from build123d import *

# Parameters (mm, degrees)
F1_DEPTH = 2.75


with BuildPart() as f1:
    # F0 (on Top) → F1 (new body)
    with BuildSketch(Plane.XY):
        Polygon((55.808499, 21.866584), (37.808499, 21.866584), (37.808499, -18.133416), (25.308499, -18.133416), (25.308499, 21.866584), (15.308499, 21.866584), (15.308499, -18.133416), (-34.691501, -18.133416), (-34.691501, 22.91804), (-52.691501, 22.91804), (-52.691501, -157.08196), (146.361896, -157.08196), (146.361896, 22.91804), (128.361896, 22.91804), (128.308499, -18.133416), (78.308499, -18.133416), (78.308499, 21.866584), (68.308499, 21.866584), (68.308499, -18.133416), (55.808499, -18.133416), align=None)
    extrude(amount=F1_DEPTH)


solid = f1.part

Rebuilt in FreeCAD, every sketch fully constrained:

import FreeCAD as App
import Part
import Sketcher
from FreeCAD import Vector


def add_polygon(sketch, points):
    """Adds a closed chain of lines whose ends are joined by coincident constraints."""
    first, n = sketch.GeometryCount, len(points)
    for a, b in zip(points, points[1:] + points[:1]):
        sketch.addGeometry(Part.LineSegment(App.Vector(*a, 0), App.Vector(*b, 0)), False)
    for i in range(n):
        sketch.addConstraint(Sketcher.Constraint("Coincident", first + i, 2, first + (i + 1) % n, 1))

doc = App.newDocument("Part")
params = doc.addObject("Spreadsheet::Sheet", "Params")
for row, (alias, value) in enumerate([
    ("sketch1_width", "18 mm"),
    ("sketch1_width2", "10 mm"),
    ("sketch1_width3", "50 mm"),
    ("sketch1_height", "40 mm"),
    ("sketch1_height2", "180 mm"),
    ("pad1_length", "2.75 mm"),
], start=1):
    params.set(f"A{row}", alias)
    params.set(f"B{row}", "=" + value)
    params.setAlias(f"B{row}", alias)

body = doc.addObject("PartDesign::Body", "Body")

sketch1 = body.newObject("Sketcher::SketchObject", "Sketch")
sketch1.AttachmentSupport = (doc.getObject("XY_Plane"), [""])
sketch1.MapMode = "FlatFace"
add_polygon(sketch1, [(56, 22), (38, 22), (38, -18), (25, -18), (25, 22), (15, 22), (15, -18), (-35, -18), (-35, 23), (-53, 23), (-53, -157), (146, -157), (146, 23), (128, 23), (128, -18), (78, -18), (78, 22), (68, 22), (68, -18), (56, -18)])
sketch1.addConstraint([
    Sketcher.Constraint("Horizontal", 0),
    Sketcher.Constraint("Vertical", 1),
    Sketcher.Constraint("Horizontal", 2),
    Sketcher.Constraint("Vertical", 3),
    Sketcher.Constraint("Horizontal", 4),
    Sketcher.Constraint("Vertical", 5),
    Sketcher.Constraint("Horizontal", 6),
    Sketcher.Constraint("Vertical", 7),
    Sketcher.Constraint("Horizontal", 8),
    Sketcher.Constraint("Vertical", 9),
    Sketcher.Constraint("Horizontal", 10),
    Sketcher.Constraint("Vertical", 11),
    Sketcher.Constraint("Horizontal", 12),
    Sketcher.Constraint("Horizontal", 14),
    Sketcher.Constraint("Vertical", 15),
    Sketcher.Constraint("Horizontal", 16),
    Sketcher.Constraint("Vertical", 17),
    Sketcher.Constraint("Horizontal", 18),
    Sketcher.Constraint("Vertical", 19),
    Sketcher.Constraint("Horizontal", 0, 2, 3, 2),
    Sketcher.Constraint("Horizontal", 2, 2, 5, 2),
    Sketcher.Constraint("Horizontal", 8, 2, 11, 2),
    Sketcher.Constraint("Horizontal", 6, 2, 13, 2),
    Sketcher.Constraint("Horizontal", 4, 2, 15, 2),
    Sketcher.Constraint("Horizontal", 14, 2, 17, 2),
    Sketcher.Constraint("Equal", 0, 8),
    Sketcher.Constraint("Equal", 8, 12),
    Sketcher.Constraint("Equal", 6, 14),
    Sketcher.Constraint("Equal", 4, 16),
    Sketcher.Constraint("Equal", 2, 18),
    Sketcher.Constraint("DistanceX", 0, 2, 0, 1, 18.0),
    Sketcher.Constraint("DistanceX", 4, 2, 4, 1, 10.0),
    Sketcher.Constraint("DistanceX", 6, 2, 6, 1, 50.0),
    Sketcher.Constraint("DistanceY", 1, 2, 1, 1, 40.0),
    Sketcher.Constraint("DistanceY", 9, 2, 9, 1, 180.0),
    Sketcher.Constraint("DistanceX", 2, 2, 2, 1, 12.5),
    Sketcher.Constraint("DistanceX", -1, 1, 0, 2, 37.808499),
    Sketcher.Constraint("Distance", 13, 41.051491),
    Sketcher.Constraint("DistanceX", 10, 1, 10, 2, 199.053397),
    Sketcher.Constraint("DistanceY", -1, 1, 7, 2, 22.91804),
])
sketch1.setExpression("Constraints[50]", "Params.sketch1_width")
sketch1.setExpression("Constraints[51]", "Params.sketch1_width2")
sketch1.setExpression("Constraints[52]", "Params.sketch1_width3")
sketch1.setExpression("Constraints[53]", "Params.sketch1_height")
sketch1.setExpression("Constraints[54]", "Params.sketch1_height2")
pad1 = body.newObject("PartDesign::Pad", "Pad")
pad1.Profile = sketch1
pad1.setExpression("Length", "Params.pad1_length")

doc.recompute()
